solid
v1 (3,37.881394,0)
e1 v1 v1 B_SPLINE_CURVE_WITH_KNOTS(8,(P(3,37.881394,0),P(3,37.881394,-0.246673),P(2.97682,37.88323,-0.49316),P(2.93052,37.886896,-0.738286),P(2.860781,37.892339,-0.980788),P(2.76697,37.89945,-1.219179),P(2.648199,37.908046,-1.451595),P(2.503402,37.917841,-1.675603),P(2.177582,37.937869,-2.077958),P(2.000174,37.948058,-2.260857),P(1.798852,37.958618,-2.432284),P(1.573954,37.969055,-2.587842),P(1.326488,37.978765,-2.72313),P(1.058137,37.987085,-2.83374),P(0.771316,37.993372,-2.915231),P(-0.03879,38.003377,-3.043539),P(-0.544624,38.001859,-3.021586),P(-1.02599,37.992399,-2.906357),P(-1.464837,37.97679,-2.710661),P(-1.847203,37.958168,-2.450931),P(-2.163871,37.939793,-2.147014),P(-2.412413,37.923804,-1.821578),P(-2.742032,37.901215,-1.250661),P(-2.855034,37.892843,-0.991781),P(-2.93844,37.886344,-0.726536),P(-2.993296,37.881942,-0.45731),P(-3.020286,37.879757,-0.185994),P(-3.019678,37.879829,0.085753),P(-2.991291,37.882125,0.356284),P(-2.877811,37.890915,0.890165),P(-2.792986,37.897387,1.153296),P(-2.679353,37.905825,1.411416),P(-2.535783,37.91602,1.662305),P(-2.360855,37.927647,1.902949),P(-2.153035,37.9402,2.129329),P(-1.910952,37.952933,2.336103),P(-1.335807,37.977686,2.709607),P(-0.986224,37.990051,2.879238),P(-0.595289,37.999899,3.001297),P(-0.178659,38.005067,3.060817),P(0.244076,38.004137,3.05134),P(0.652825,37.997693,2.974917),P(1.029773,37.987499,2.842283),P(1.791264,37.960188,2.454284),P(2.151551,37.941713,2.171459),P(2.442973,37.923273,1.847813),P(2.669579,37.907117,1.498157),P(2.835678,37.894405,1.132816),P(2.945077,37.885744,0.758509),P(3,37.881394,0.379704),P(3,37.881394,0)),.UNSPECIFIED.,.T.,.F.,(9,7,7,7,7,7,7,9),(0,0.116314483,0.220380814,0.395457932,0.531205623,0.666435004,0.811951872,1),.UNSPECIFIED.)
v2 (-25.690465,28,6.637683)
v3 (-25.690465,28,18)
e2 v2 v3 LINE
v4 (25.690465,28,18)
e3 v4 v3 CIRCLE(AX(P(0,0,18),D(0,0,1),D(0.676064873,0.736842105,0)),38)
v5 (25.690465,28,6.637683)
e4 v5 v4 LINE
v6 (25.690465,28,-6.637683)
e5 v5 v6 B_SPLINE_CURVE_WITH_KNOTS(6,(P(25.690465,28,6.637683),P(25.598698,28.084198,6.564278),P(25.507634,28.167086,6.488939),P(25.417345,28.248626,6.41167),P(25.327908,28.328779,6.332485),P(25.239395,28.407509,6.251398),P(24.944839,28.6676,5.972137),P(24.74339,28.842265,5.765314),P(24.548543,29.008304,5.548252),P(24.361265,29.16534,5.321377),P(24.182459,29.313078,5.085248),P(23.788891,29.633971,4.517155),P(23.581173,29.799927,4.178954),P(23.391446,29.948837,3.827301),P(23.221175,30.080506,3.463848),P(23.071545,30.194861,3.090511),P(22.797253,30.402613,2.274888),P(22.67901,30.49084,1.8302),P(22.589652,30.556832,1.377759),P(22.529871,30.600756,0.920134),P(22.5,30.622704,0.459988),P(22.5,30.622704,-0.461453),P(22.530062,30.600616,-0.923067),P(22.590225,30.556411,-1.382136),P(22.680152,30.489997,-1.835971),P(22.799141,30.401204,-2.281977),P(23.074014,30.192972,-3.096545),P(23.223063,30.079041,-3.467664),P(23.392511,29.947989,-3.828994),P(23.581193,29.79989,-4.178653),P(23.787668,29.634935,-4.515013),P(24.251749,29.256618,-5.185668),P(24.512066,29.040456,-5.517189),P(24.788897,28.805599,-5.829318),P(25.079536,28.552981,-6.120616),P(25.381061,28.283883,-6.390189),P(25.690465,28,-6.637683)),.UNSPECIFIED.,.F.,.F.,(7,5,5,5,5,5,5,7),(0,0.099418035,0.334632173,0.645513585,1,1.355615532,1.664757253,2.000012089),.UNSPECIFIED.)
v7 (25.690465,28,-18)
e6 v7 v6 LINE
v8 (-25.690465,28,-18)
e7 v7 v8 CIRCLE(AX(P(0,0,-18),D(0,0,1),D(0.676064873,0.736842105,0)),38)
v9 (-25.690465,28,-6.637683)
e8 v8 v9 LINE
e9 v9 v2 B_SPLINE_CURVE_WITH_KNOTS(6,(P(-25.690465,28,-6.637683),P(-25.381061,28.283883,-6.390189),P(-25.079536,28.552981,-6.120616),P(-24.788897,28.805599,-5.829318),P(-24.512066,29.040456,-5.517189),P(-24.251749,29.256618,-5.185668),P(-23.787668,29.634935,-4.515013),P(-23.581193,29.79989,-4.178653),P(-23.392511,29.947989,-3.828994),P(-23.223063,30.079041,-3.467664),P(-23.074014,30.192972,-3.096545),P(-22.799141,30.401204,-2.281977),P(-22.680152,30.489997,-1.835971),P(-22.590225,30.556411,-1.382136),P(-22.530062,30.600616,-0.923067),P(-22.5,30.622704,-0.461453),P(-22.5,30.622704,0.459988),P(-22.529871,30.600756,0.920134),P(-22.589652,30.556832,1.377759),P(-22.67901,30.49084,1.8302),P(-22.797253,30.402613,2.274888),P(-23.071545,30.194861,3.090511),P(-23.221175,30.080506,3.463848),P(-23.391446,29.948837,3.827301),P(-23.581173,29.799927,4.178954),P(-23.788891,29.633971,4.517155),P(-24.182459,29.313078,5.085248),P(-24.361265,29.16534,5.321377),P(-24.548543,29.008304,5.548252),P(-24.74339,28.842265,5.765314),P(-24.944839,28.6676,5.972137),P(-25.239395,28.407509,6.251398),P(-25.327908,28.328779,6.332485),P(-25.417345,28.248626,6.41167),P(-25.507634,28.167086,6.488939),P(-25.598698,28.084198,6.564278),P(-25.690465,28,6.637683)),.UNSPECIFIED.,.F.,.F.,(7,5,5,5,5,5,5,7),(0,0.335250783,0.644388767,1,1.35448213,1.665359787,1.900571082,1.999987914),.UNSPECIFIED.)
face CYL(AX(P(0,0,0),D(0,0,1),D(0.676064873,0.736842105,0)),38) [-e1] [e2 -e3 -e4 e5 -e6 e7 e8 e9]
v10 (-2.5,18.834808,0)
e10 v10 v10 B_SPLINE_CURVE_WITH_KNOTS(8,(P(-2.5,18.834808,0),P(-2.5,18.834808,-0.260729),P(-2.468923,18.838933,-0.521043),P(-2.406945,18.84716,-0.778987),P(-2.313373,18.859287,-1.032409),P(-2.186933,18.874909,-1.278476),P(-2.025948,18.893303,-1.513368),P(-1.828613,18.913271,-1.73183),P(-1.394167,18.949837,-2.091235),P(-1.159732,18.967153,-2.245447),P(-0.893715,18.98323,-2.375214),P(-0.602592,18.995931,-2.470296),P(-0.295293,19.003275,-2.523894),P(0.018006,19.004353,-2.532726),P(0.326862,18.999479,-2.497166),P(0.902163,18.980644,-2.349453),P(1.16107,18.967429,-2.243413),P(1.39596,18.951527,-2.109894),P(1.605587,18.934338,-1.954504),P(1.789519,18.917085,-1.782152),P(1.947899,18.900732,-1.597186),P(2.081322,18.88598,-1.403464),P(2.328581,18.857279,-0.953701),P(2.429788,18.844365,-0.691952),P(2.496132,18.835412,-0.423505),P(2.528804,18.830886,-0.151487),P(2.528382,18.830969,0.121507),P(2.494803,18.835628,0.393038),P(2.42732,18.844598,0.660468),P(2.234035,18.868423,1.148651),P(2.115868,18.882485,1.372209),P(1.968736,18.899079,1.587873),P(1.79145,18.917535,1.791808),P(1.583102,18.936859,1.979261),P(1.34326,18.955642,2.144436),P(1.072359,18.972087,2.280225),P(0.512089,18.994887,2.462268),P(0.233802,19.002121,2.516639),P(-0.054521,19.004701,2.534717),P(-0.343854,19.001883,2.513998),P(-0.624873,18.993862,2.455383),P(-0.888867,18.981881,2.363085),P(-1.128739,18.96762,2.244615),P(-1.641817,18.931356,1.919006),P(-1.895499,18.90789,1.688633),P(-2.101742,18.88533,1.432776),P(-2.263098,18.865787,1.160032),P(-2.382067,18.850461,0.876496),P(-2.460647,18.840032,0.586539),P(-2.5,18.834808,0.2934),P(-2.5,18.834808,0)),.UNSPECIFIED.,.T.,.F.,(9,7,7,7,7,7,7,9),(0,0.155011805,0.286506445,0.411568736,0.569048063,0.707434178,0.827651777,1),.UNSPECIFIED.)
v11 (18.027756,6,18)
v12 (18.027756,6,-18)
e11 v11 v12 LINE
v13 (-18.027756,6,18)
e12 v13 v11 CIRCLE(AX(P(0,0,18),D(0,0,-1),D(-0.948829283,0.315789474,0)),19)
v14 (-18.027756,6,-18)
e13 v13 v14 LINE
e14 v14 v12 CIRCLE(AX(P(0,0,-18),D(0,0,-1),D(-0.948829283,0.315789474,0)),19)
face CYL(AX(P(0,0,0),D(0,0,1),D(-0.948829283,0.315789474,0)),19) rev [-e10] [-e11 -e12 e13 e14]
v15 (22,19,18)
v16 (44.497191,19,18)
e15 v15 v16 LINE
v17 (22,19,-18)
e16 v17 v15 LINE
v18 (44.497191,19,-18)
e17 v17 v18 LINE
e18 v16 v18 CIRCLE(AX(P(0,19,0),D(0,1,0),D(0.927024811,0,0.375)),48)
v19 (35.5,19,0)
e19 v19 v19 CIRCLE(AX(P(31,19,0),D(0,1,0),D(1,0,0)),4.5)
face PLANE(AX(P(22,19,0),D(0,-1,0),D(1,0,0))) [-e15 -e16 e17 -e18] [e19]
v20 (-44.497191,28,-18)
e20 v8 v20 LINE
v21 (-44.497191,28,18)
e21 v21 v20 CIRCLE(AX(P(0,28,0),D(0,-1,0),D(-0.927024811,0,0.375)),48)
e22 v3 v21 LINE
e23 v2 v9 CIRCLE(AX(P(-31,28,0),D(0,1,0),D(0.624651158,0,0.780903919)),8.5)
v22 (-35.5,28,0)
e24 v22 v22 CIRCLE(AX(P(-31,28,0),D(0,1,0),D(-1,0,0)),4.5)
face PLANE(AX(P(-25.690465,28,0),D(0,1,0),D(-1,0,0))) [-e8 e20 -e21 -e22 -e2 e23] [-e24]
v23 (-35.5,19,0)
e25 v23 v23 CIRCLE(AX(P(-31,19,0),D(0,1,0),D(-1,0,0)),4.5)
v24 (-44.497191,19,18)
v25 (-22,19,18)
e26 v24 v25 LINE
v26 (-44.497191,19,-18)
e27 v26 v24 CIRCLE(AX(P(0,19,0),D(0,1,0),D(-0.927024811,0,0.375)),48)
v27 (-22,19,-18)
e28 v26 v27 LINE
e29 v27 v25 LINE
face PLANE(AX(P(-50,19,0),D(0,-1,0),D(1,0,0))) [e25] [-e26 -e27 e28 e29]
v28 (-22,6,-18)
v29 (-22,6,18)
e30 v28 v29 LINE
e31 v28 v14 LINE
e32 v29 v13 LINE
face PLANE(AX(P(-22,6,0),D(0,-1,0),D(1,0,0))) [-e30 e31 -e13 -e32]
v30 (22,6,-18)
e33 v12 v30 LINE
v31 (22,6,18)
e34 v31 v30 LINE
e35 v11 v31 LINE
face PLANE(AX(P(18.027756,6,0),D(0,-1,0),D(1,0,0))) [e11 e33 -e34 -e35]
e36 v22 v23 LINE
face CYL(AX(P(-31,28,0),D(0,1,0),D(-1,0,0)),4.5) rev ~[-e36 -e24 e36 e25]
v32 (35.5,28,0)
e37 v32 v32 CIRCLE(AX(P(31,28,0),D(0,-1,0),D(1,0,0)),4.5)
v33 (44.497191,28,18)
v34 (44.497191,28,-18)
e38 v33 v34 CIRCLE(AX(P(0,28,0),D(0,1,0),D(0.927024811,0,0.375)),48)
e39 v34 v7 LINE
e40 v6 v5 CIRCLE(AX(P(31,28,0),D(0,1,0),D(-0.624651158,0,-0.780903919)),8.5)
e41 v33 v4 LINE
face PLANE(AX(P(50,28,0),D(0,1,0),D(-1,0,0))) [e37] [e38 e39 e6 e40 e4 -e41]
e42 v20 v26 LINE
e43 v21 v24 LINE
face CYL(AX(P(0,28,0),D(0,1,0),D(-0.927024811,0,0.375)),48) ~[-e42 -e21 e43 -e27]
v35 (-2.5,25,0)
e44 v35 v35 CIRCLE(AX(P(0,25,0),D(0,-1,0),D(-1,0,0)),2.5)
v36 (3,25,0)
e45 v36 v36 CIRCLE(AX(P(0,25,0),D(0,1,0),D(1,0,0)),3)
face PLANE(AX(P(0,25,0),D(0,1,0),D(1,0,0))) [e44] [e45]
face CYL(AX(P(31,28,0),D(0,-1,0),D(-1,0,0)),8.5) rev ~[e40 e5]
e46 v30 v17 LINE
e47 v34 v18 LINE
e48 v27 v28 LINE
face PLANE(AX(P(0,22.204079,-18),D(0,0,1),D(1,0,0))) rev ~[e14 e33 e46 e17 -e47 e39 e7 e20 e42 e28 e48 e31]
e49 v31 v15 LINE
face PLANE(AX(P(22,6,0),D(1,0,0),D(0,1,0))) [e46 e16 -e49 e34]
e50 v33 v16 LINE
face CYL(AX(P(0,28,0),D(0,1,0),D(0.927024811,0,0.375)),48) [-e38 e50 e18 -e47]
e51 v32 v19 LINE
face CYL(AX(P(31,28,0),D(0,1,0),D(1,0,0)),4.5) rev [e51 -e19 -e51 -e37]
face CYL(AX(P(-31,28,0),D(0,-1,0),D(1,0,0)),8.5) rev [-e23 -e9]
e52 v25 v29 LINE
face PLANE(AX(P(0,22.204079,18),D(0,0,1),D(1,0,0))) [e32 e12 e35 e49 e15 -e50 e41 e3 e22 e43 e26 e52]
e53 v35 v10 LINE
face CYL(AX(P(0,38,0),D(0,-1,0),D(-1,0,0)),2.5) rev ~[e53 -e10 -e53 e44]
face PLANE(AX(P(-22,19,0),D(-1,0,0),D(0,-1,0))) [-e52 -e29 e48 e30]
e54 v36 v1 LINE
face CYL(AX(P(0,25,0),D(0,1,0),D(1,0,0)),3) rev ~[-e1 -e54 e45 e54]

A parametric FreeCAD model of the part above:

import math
import FreeCAD as App
import Part
import Sketcher
Q = App.Units.Quantity

doc = App.newDocument("Part")
params = doc.addObject("Spreadsheet::Sheet", "Params")
for row, (alias, value) in enumerate([
    ("sketch1_radius", "38 mm"),
    ("sketch1_radius2", "19 mm"),
    ("sketch1_width", "28 mm"),
    ("sketch1_height", "13 mm"),
    ("sketch1_height2", "9 mm"),
    ("pad1_length", "36 mm"),
    ("sketch2_radius", "48 mm"),
    ("sketch2_height", "36 mm"),
    ("sketch3_diameter", "9 mm"),
    ("sketch4_diameter", "17 mm"),
    ("pocket3_length", "13 mm"),
    ("sketch5_diameter", "5 mm"),
    ("hole_diameter", "5 mm"),
    ("hole_cbore_diameter", "6 mm"),
    ("hole_cbore_depth", "13 mm"),
], start=1):
    params.set(f"A{row}", alias)
    params.set(f"B{row}", "=" + value)
    params.setAlias(f"B{row}", alias)

body = doc.addObject("PartDesign::Body", "Body")

# Sketch on XY plane
sketch1 = doc.addObject("Sketcher::SketchObject", "Sketch")
body.addObject(sketch1)
sketch1.AttachmentSupport = (doc.XY_Plane, [""])
sketch1.MapMode = "FlatFace"
sketch1.addGeometry(Part.LineSegment(App.Vector(22, 6, 0), App.Vector(22, 19, 0)), False)
sketch1.addGeometry(Part.LineSegment(App.Vector(22, 19, 0), App.Vector(50, 19, 0)), False)
sketch1.addGeometry(Part.LineSegment(App.Vector(50, 19, 0), App.Vector(50, 28, 0)), False)
sketch1.addGeometry(Part.LineSegment(App.Vector(50, 28, 0), App.Vector(25.7, 28, 0)), False)
sketch1.addGeometry(Part.ArcOfCircle(Part.Circle(App.Vector(0, 0, 0), App.Vector(0, 0, 1), 38), math.radians(47), math.radians(133)), False)
sketch1.addGeometry(Part.LineSegment(App.Vector(-25.7, 28, 0), App.Vector(-50, 28, 0)), False)
sketch1.addGeometry(Part.LineSegment(App.Vector(-50, 28, 0), App.Vector(-50, 19, 0)), False)
sketch1.addGeometry(Part.LineSegment(App.Vector(-50, 19, 0), App.Vector(-22, 19, 0)), False)
sketch1.addGeometry(Part.LineSegment(App.Vector(-22, 19, 0), App.Vector(-22, 6, 0)), False)
sketch1.addGeometry(Part.LineSegment(App.Vector(-22, 6, 0), App.Vector(-18, 6, 0)), False)
sketch1.addGeometry(Part.ArcOfCircle(Part.Circle(App.Vector(0, 0, 0), App.Vector(0, 0, 1), 19), math.radians(18), math.radians(162)), False)
sketch1.addGeometry(Part.LineSegment(App.Vector(18, 6, 0), App.Vector(22, 6, 0)), False)
sketch1.addConstraint(Sketcher.Constraint("Coincident", 0, 2, 1, 1))
sketch1.addConstraint(Sketcher.Constraint("Coincident", 1, 2, 2, 1))
sketch1.addConstraint(Sketcher.Constraint("Coincident", 2, 2, 3, 1))
sketch1.addConstraint(Sketcher.Constraint("Coincident", 3, 2, 4, 1))
sketch1.addConstraint(Sketcher.Constraint("Coincident", 4, 2, 5, 1))
sketch1.addConstraint(Sketcher.Constraint("Coincident", 5, 2, 6, 1))
sketch1.addConstraint(Sketcher.Constraint("Coincident", 6, 2, 7, 1))
sketch1.addConstraint(Sketcher.Constraint("Coincident", 7, 2, 8, 1))
sketch1.addConstraint(Sketcher.Constraint("Coincident", 8, 2, 9, 1))
sketch1.addConstraint(Sketcher.Constraint("Coincident", 9, 2, 10, 2))
sketch1.addConstraint(Sketcher.Constraint("Coincident", 10, 1, 11, 1))
sketch1.addConstraint(Sketcher.Constraint("Coincident", 11, 2, 0, 1))
sketch1.addConstraint(Sketcher.Constraint("Vertical", 0))
sketch1.addConstraint(Sketcher.Constraint("Horizontal", 1))
sketch1.addConstraint(Sketcher.Constraint("Vertical", 2))
sketch1.addConstraint(Sketcher.Constraint("Horizontal", 3))
sketch1.addConstraint(Sketcher.Constraint("Horizontal", 5))
sketch1.addConstraint(Sketcher.Constraint("Vertical", 6))
sketch1.addConstraint(Sketcher.Constraint("Horizontal", 7))
sketch1.addConstraint(Sketcher.Constraint("Vertical", 8))
sketch1.addConstraint(Sketcher.Constraint("Horizontal", 9))
sketch1.addConstraint(Sketcher.Constraint("Horizontal", 11))
sketch1.addConstraint(Sketcher.Constraint("Coincident", 4, 3, -1, 1))
sketch1.addConstraint(Sketcher.Constraint("Coincident", 10, 3, -1, 1))
sketch1.addConstraint(Sketcher.Constraint("Symmetric", 2, 2, 5, 2, -2))
sketch1.addConstraint(Sketcher.Constraint("Symmetric", 0, 2, 7, 2, -2))
sketch1.addConstraint(Sketcher.Constraint("Horizontal", 9, 2, 10, 1))
sketch1.addConstraint(Sketcher.Constraint("Radius", 4, Q("38 mm")))
sketch1.addConstraint(Sketcher.Constraint("Radius", 10, Q("19 mm")))
sketch1.addConstraint(Sketcher.Constraint("DistanceX", 1, 1, 1, 2, Q("28 mm")))
sketch1.addConstraint(Sketcher.Constraint("DistanceY", 0, 1, 0, 2, Q("13 mm")))
sketch1.addConstraint(Sketcher.Constraint("DistanceY", 2, 1, 2, 2, Q("9 mm")))
sketch1.addConstraint(Sketcher.Constraint("DistanceX", -1, 1, 0, 2, Q("22 mm")))
sketch1.addConstraint(Sketcher.Constraint("DistanceY", -1, 1, 0, 2, Q("19 mm")))
sketch1.setExpression("Constraints[27]", "Params.sketch1_radius")
sketch1.setExpression("Constraints[28]", "Params.sketch1_radius2")
sketch1.setExpression("Constraints[29]", "Params.sketch1_width")
sketch1.setExpression("Constraints[30]", "Params.sketch1_height")
sketch1.setExpression("Constraints[31]", "Params.sketch1_height2")
pad1 = doc.addObject("PartDesign::Pad", "Pad")
body.addObject(pad1)
pad1.Profile = sketch1
pad1.setExpression("Length", "Params.pad1_length")
pad1.Midplane = True

# Sketch on XZ plane
sketch2 = doc.addObject("Sketcher::SketchObject", "Sketch001")
body.addObject(sketch2)
sketch2.AttachmentSupport = (doc.XZ_Plane, [""])
sketch2.MapMode = "FlatFace"
sketch2.AttachmentOffset = App.Placement(App.Vector(0, 0, -28), App.Rotation())
sketch2.addGeometry(Part.LineSegment(App.Vector(-44, -18, 0), App.Vector(-50, -18, 0)), False)
sketch2.addGeometry(Part.LineSegment(App.Vector(-50, -18, 0), App.Vector(-50, 18, 0)), False)
sketch2.addGeometry(Part.LineSegment(App.Vector(-50, 18, 0), App.Vector(-44, 18, 0)), False)
sketch2.addGeometry(Part.ArcOfCircle(Part.Circle(App.Vector(0, 0, 0), App.Vector(0, 0, 1), 48), math.radians(158), math.radians(202)), False)
sketch2.addGeometry(Part.LineSegment(App.Vector(44, 18, 0), App.Vector(50, 18, 0)), False)
sketch2.addGeometry(Part.LineSegment(App.Vector(50, 18, 0), App.Vector(50, -18, 0)), False)
sketch2.addGeometry(Part.LineSegment(App.Vector(50, -18, 0), App.Vector(44, -18, 0)), False)
sketch2.addGeometry(Part.ArcOfCircle(Part.Circle(App.Vector(0, 0, 0), App.Vector(0, 0, 1), 48), math.radians(-22), math.radians(22)), False)
sketch2.addConstraint(Sketcher.Constraint("Coincident", 0, 2, 1, 1))
sketch2.addConstraint(Sketcher.Constraint("Coincident", 1, 2, 2, 1))
sketch2.addConstraint(Sketcher.Constraint("Coincident", 2, 2, 3, 1))
sketch2.addConstraint(Sketcher.Constraint("Coincident", 3, 2, 0, 1))
sketch2.addConstraint(Sketcher.Constraint("Coincident", 4, 2, 5, 1))
sketch2.addConstraint(Sketcher.Constraint("Coincident", 5, 2, 6, 1))
sketch2.addConstraint(Sketcher.Constraint("Coincident", 6, 2, 7, 1))
sketch2.addConstraint(Sketcher.Constraint("Coincident", 7, 2, 4, 1))
sketch2.addConstraint(Sketcher.Constraint("Horizontal", 0))
sketch2.addConstraint(Sketcher.Constraint("Vertical", 1))
sketch2.addConstraint(Sketcher.Constraint("Horizontal", 2))
sketch2.addConstraint(Sketcher.Constraint("Horizontal", 4))
sketch2.addConstraint(Sketcher.Constraint("Vertical", 5))
sketch2.addConstraint(Sketcher.Constraint("Horizontal", 6))
sketch2.addConstraint(Sketcher.Constraint("Coincident", 3, 3, -1, 1))
sketch2.addConstraint(Sketcher.Constraint("Coincident", 7, 3, -1, 1))
sketch2.addConstraint(Sketcher.Constraint("Equal", 3, 7))
sketch2.addConstraint(Sketcher.Constraint("Symmetric", 0, 2, 4, 2, -1, 1))
sketch2.addConstraint(Sketcher.Constraint("Horizontal", 2, 2, 4, 2))
sketch2.addConstraint(Sketcher.Constraint("Horizontal", 3, 2, 5, 2))
sketch2.addConstraint(Sketcher.Constraint("Radius", 3, Q("48 mm")))
sketch2.addConstraint(Sketcher.Constraint("DistanceY", 1, 1, 1, 2, Q("36 mm")))
sketch2.addConstraint(Sketcher.Constraint("DistanceX", 0, 2, -1, 1, Q("50 mm")))
sketch2.setExpression("Constraints[20]", "Params.sketch2_radius")
sketch2.setExpression("Constraints[21]", "Params.sketch2_height")
pocket1 = doc.addObject("PartDesign::Pocket", "Pocket")
body.addObject(pocket1)
pocket1.Profile = sketch2
pocket1.Type = "ThroughAll"
pocket1.Reversed = True

# Sketch on XZ plane
sketch3 = doc.addObject("Sketcher::SketchObject", "Sketch002")
body.addObject(sketch3)
sketch3.AttachmentSupport = (doc.XZ_Plane, [""])
sketch3.MapMode = "FlatFace"
sketch3.AttachmentOffset = App.Placement(App.Vector(0, 0, -28), App.Rotation())
sketch3.addGeometry(Part.Circle(App.Vector(-31, 0, 0), App.Vector(0, 0, 1), 4.5), False)
sketch3.addConstraint(Sketcher.Constraint("PointOnObject", 0, 3, -1))
sketch3.addConstraint(Sketcher.Constraint("Diameter", 0, Q("9 mm")))
sketch3.addConstraint(Sketcher.Constraint("DistanceX", 0, 3, -1, 1, Q("31 mm")))
sketch3.setExpression("Constraints[1]", "Params.sketch3_diameter")
pocket2 = doc.addObject("PartDesign::Pocket", "Pocket001")
body.addObject(pocket2)
pocket2.Profile = sketch3
pocket2.Type = "ThroughAll"
pocket2.Reversed = True
doc.recompute()

mirrored = doc.addObject("PartDesign::Mirrored", "Mirrored")
body.addObject(mirrored)
mirrored.Originals = [pocket2]
mirrored.MirrorPlane = (doc.YZ_Plane, [""])
body.Tip = mirrored

# Sketch on XZ plane
sketch4 = doc.addObject("Sketcher::SketchObject", "Sketch003")
body.addObject(sketch4)
sketch4.AttachmentSupport = (doc.XZ_Plane, [""])
sketch4.MapMode = "FlatFace"
sketch4.AttachmentOffset = App.Placement(App.Vector(0, 0, -28), App.Rotation())
sketch4.addGeometry(Part.Circle(App.Vector(-31, 0, 0), App.Vector(0, 0, 1), 8), False)
sketch4.addConstraint(Sketcher.Constraint("PointOnObject", 0, 3, -1))
sketch4.addConstraint(Sketcher.Constraint("Diameter", 0, Q("17 mm")))
sketch4.addConstraint(Sketcher.Constraint("DistanceX", 0, 3, -1, 1, Q("31 mm")))
sketch4.setExpression("Constraints[1]", "Params.sketch4_diameter")
pocket3 = doc.addObject("PartDesign::Pocket", "Pocket002")
body.addObject(pocket3)
pocket3.Profile = sketch4
pocket3.setExpression("Length", "Params.pocket3_length")

# Sketch on XZ plane
sketch5 = doc.addObject("Sketcher::SketchObject", "Sketch004")
body.addObject(sketch5)
sketch5.AttachmentSupport = (doc.XZ_Plane, [""])
sketch5.MapMode = "FlatFace"
sketch5.AttachmentOffset = App.Placement(App.Vector(0, 0, -38), App.Rotation())
sketch5.addGeometry(Part.Circle(App.Vector(0, 0, 0), App.Vector(0, 0, 1), 2.5), False)
sketch5.addConstraint(Sketcher.Constraint("Coincident", 0, 3, -1, 1))
sketch5.addConstraint(Sketcher.Constraint("Diameter", 0, Q("5 mm")))
sketch5.setExpression("Constraints[1]", "Params.sketch5_diameter")
doc.recompute()
hole = doc.addObject("PartDesign::Hole", "Hole")
body.addObject(hole)
hole.Profile = sketch5
hole.ThreadType = "None"
hole.setExpression("Diameter", "Params.hole_diameter")
hole.DepthType = "ThroughAll"
hole.HoleCutType = "Counterbore"
hole.setExpression("HoleCutDiameter", "Params.hole_cbore_diameter")
hole.setExpression("HoleCutDepth", "Params.hole_cbore_depth")
hole.Reversed = True
doc.recompute()

mirrored2 = doc.addObject("PartDesign::Mirrored", "Mirrored001")
body.addObject(mirrored2)
mirrored2.Originals = [pocket3]
mirrored2.MirrorPlane = (doc.YZ_Plane, [""])
body.Tip = mirrored2

doc.recompute()
